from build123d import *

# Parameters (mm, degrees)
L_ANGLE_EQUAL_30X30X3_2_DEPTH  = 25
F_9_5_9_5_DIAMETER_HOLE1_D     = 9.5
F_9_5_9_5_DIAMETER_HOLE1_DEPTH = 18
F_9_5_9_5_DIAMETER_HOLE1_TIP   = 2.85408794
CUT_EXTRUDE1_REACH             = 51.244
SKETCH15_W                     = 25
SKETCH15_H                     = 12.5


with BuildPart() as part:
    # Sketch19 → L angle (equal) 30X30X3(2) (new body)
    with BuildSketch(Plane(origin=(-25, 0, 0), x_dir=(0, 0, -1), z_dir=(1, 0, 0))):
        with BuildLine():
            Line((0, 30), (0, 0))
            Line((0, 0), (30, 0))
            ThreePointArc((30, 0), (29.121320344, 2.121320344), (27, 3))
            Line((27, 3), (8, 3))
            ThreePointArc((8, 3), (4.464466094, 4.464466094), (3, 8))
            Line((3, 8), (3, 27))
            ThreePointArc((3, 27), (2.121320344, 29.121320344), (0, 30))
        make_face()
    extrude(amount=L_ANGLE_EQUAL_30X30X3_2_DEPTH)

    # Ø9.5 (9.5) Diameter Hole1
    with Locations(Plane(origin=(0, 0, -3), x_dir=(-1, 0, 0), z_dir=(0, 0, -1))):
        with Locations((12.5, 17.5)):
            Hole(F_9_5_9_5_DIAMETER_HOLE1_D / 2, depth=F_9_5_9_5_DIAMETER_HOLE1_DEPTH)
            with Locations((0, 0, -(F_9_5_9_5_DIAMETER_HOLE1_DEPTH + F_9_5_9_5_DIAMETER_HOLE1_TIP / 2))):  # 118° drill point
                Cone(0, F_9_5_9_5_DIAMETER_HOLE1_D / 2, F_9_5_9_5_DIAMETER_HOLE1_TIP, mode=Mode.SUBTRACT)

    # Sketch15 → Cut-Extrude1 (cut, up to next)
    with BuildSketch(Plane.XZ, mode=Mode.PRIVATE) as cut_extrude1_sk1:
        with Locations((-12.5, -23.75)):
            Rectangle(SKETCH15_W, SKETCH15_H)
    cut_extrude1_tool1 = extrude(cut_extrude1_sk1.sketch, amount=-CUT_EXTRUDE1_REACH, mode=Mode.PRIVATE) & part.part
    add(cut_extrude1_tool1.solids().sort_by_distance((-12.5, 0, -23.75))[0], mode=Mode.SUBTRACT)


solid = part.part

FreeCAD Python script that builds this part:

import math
import FreeCAD as App
import Part
import Sketcher

V = App.Vector

doc = App.newDocument("Part")
body = doc.addObject("PartDesign::Body", "Body")

# Sketch on YZ plane
sketch1 = body.newObject("Sketcher::SketchObject", "Sketch")
sketch1.AttachmentSupport = (doc.getObject("YZ_Plane"), [""])
sketch1.MapMode = "FlatFace"
sketch1.AttachmentOffset = App.Placement(V(0, 0, -25), App.Rotation())
sketch1.addGeometry([
    Part.LineSegment(V(30, 0, 0), V(0, 0, 0)),  # 0
    Part.LineSegment(V(0, 0, 0), V(0, -30, 0)),  # 1
    Part.ArcOfCircle(Part.Circle(V(0, -27, 0), V(0, 0, 1), 3), math.radians(-90), math.radians(0)),  # 2
    Part.LineSegment(V(3, -27, 0), V(3, -8, 0)),  # 3
    Part.ArcOfCircle(Part.Circle(V(8, -8, 0), V(0, 0, 1), 5), math.radians(90), math.radians(180)),  # 4
    Part.LineSegment(V(8, -3, 0), V(27, -3, 0)),  # 5
    Part.ArcOfCircle(Part.Circle(V(27, 0, 0), V(0, 0, 1), 3), math.radians(-90), math.radians(0)),  # 6
], False)
sketch1.addConstraint([
    Sketcher.Constraint("Coincident", 0, 2, 1, 1),
    Sketcher.Constraint("Coincident", 1, 2, 2, 1),
    Sketcher.Constraint("Tangent", 2, 2, 3, 1),
    Sketcher.Constraint("Tangent", 3, 2, 4, 2),
    Sketcher.Constraint("Tangent", 4, 1, 5, 1),
    Sketcher.Constraint("Tangent", 5, 2, 6, 1),
    Sketcher.Constraint("Coincident", 6, 2, 0, 1),
    Sketcher.Constraint("Horizontal", 0),
    Sketcher.Constraint("Vertical", 1),
    Sketcher.Constraint("Vertical", 3),
    Sketcher.Constraint("Horizontal", 5),
    Sketcher.Constraint("Coincident", 0, 2, -1, 1),
    Sketcher.Constraint("Equal", 2, 6),
    Sketcher.Constraint("PointOnObject", 2, 3, -2),
    Sketcher.Constraint("PointOnObject", 6, 3, -1),
    Sketcher.Constraint("Equal", 0, 1),
    Sketcher.Constraint("Radius", 2, 3.0),
    Sketcher.Constraint("Radius", 4, 5.0),
    Sketcher.Constraint("DistanceX", 0, 2, 0, 1, 30.0),
])
pad1 = body.newObject("PartDesign::Pad", "Pad")
pad1.Profile = sketch1
pad1.Length = 25

# Sketch on XY plane
sketch2 = body.newObject("Sketcher::SketchObject", "Sketch001")
sketch2.AttachmentSupport = (doc.getObject("XY_Plane"), [""])
sketch2.MapMode = "FlatFace"
sketch2.AttachmentOffset = App.Placement(V(0, 0, -3), App.Rotation())
sketch2.addGeometry(Part.Circle(V(-12.5, 17.5, 0), V(0, 0, 1), 4.75), False)
sketch2.addConstraint([
    Sketcher.Constraint("Diameter", 0, 9.5),
    Sketcher.Constraint("DistanceX", 0, 3, -1, 1, 12.5),
    Sketcher.Constraint("DistanceY", -1, 1, 0, 3, 17.5),
])
doc.recompute()
hole = body.newObject("PartDesign::Hole", "Hole")
hole.Profile = sketch2
hole.ThreadType = "None"
hole.Diameter = 9.5
hole.DepthType = "Dimension"
hole.Depth = 18
hole.DrillPoint = "Angled"
hole.DrillPointAngle = 118
hole.Reversed = True

# Sketch on XZ plane
sketch3 = body.newObject("Sketcher::SketchObject", "Sketch002")
sketch3.AttachmentSupport = (doc.getObject("XZ_Plane"), [""])
sketch3.MapMode = "FlatFace"
sketch3.addGeometry([
    Part.LineSegment(V(-25, -17.5, 0), V(-25, -30, 0)),
    Part.LineSegment(V(-25, -30, 0), V(0, -30, 0)),
    Part.LineSegment(V(0, -30, 0), V(0, -17.5, 0)),
    Part.LineSegment(V(0, -17.5, 0), V(-25, -17.5, 0)),
], False)
sketch3.addConstraint([
    Sketcher.Constraint("Coincident", 0, 2, 1, 1),
    Sketcher.Constraint("Coincident", 1, 2, 2, 1),
    Sketcher.Constraint("Coincident", 2, 2, 3, 1),
    Sketcher.Constraint("Coincident", 3, 2, 0, 1),
    Sketcher.Constraint("Vertical", 0),
    Sketcher.Constraint("Horizontal", 1),
    Sketcher.Constraint("Vertical", 2),
    Sketcher.Constraint("Horizontal", 3),
    Sketcher.Constraint("PointOnObject", 1, 2, -2),
    Sketcher.Constraint("DistanceX", 1, 1, 1, 2, 25.0),
    Sketcher.Constraint("DistanceY", 0, 2, 0, 1, 12.5),
    Sketcher.Constraint("DistanceY", 0, 2, -1, 1, 30.0),
])
pocket1 = body.newObject("PartDesign::Pocket", "Pocket")
pocket1.Profile = sketch3
pocket1.Type = "UpToFirst"

doc.recompute()
